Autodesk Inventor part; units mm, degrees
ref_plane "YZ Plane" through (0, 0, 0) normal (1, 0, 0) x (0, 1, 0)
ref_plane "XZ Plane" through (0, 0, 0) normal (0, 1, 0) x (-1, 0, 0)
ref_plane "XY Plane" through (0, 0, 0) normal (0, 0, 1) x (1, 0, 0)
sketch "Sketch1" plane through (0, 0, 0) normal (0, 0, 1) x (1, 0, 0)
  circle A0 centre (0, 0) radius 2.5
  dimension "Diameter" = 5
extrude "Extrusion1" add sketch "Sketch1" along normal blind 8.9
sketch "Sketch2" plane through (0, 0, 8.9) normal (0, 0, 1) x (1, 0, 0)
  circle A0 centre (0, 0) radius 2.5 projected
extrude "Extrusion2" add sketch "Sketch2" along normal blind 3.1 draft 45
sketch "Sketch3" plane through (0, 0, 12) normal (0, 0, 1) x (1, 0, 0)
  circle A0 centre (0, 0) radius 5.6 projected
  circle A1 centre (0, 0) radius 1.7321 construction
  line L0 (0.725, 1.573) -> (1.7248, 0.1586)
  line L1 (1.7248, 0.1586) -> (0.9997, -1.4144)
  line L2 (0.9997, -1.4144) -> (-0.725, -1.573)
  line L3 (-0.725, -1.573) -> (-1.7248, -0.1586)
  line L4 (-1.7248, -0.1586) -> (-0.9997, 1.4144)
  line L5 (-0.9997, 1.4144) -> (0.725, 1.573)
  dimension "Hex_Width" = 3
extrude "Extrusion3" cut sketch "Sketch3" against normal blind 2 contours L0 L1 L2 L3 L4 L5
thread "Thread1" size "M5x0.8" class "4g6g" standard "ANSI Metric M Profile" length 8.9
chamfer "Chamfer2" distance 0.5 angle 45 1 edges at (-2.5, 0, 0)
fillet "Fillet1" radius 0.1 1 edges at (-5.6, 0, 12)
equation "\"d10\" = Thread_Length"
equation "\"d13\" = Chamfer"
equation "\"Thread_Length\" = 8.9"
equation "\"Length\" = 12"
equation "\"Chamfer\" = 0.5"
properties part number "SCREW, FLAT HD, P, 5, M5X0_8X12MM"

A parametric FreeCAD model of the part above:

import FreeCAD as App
import Part
import Sketcher

V = App.Vector
Q = App.Units.Quantity


def edges_at(feature, points):
    """Names of the edges that pass closest to the given points."""
    edges = feature.Shape.Edges
    near = lambda p: min(range(len(edges)), key=lambda i: edges[i].distToShape(Part.Vertex(*p))[0])
    return sorted({f"Edge{near(p) + 1}" for p in points})

doc = App.newDocument("Part")
body = doc.addObject("PartDesign::Body", "Body")

# Sketch on XY plane
sketch1 = body.newObject("Sketcher::SketchObject", "Sketch")
sketch1.AttachmentSupport = (doc.getObject("XY_Plane"), [""])
sketch1.MapMode = "FlatFace"
sketch1.addGeometry(Part.Circle(V(0, 0, 0), V(0, 0, 1), 2.5), False)
sketch1.addConstraint(Sketcher.Constraint("Coincident", 0, 3, -1, 1))
sketch1.addConstraint(Sketcher.Constraint("Diameter", 0, Q("5 mm")))
pad1 = body.newObject("PartDesign::Pad", "Pad")
pad1.Profile = sketch1
pad1.Length = 8.9

# Sketch on XY plane
sketch2 = body.newObject("Sketcher::SketchObject", "Sketch001")
sketch2.AttachmentSupport = (doc.getObject("XY_Plane"), [""])
sketch2.MapMode = "FlatFace"
sketch2.AttachmentOffset = App.Placement(V(0, 0, 8.9), App.Rotation())
sketch2.addGeometry(Part.Circle(V(0, 0, 0), V(0, 0, 1), 2.5), False)
sketch2.addConstraint(Sketcher.Constraint("Coincident", 0, 3, -1, 1))
sketch2.addConstraint(Sketcher.Constraint("Diameter", 0, Q("5 mm")))
pad2 = body.newObject("PartDesign::Pad", "Pad001")
pad2.Profile = sketch2
pad2.Length = 3.1
pad2.TaperAngle = 45

# Sketch on XY plane
sketch3 = body.newObject("Sketcher::SketchObject", "Sketch002")
sketch3.AttachmentSupport = (doc.getObject("XY_Plane"), [""])
sketch3.MapMode = "FlatFace"
sketch3.AttachmentOffset = App.Placement(V(0, 0, 12), App.Rotation())
sketch3.addGeometry(Part.LineSegment(V(1.7, 0.2, 0), V(0.7, 1.6, 0)), False)
sketch3.addGeometry(Part.LineSegment(V(0.7, 1.6, 0), V(-1, 1.4, 0)), False)
sketch3.addGeometry(Part.LineSegment(V(-1, 1.4, 0), V(-1.7, -0.2, 0)), False)
sketch3.addGeometry(Part.LineSegment(V(-1.7, -0.2, 0), V(-0.7, -1.6, 0)), False)
sketch3.addGeometry(Part.LineSegment(V(-0.7, -1.6, 0), V(1, -1.4, 0)), False)
sketch3.addGeometry(Part.LineSegment(V(1, -1.4, 0), V(1.7, 0.2, 0)), False)
sketch3.addConstraint(Sketcher.Constraint("Coincident", 0, 2, 1, 1))
sketch3.addConstraint(Sketcher.Constraint("Coincident", 1, 2, 2, 1))
sketch3.addConstraint(Sketcher.Constraint("Coincident", 2, 2, 3, 1))
sketch3.addConstraint(Sketcher.Constraint("Coincident", 3, 2, 4, 1))
sketch3.addConstraint(Sketcher.Constraint("Coincident", 4, 2, 5, 1))
sketch3.addConstraint(Sketcher.Constraint("Coincident", 5, 2, 0, 1))
sketch3.addConstraint(Sketcher.Constraint("Symmetric", 0, 2, 3, 2, -1, 1))
sketch3.addConstraint(Sketcher.Constraint("Symmetric", 1, 2, 4, 2, -1, 1))
sketch3.addConstraint(Sketcher.Constraint("Symmetric", 2, 2, 5, 2, -1, 1))
sketch3.addConstraint(Sketcher.Constraint("Equal", 0, 1))
sketch3.addConstraint(Sketcher.Constraint("Equal", 1, 2))
sketch3.addConstraint(Sketcher.Constraint("DistanceX", 3, 2, 0, 2, Q("1.45 mm")))
sketch3.addConstraint(Sketcher.Constraint("Distance", 0, Q("1.732 mm")))
sketch3.addConstraint(Sketcher.Constraint("DistanceY", -1, 1, 0, 2, Q("1.573 mm")))
sketch3.addConstraint(Sketcher.Constraint("DistanceX", 2, 2, 1, 2, Q("0.725 mm")))
pocket1 = body.newObject("PartDesign::Pocket", "Pocket")
pocket1.Profile = sketch3
pocket1.Length = 2
doc.recompute()

chamfer = body.newObject("PartDesign::Chamfer", "Chamfer")
chamfer.Base = (pocket1, edges_at(pocket1, [(-2.5, 0, 0)]))
chamfer.Size = 0.5
doc.recompute()

fillet = body.newObject("PartDesign::Fillet", "Fillet")
fillet.Base = (chamfer, edges_at(chamfer, [(-5.6, 0, 12)]))
fillet.Radius = 0.1

doc.recompute()
